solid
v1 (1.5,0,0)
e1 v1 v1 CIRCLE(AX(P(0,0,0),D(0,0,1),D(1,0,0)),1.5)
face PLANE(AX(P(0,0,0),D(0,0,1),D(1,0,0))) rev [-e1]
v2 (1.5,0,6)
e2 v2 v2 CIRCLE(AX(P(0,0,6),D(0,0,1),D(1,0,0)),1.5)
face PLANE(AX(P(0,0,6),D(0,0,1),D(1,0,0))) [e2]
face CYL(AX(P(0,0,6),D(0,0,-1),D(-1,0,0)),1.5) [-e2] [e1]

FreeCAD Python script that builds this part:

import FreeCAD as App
import Part
import Sketcher
Q = App.Units.Quantity

doc = App.newDocument("Part")
params = doc.addObject("Spreadsheet::Sheet", "Params")
for row, (alias, value) in enumerate([
    ("sketch1_diameter", "3 mm"),
    ("pad1_length", "6 mm"),
], start=1):
    params.set(f"A{row}", alias)
    params.set(f"B{row}", "=" + value)
    params.setAlias(f"B{row}", alias)

body = doc.addObject("PartDesign::Body", "Body")

sketch1 = doc.addObject("Sketcher::SketchObject", "Sketch")
body.addObject(sketch1)
sketch1.AttachmentSupport = (doc.XY_Plane, [""])
sketch1.MapMode = "FlatFace"
sketch1.addGeometry(Part.Circle(App.Vector(0, 0, 0), App.Vector(0, 0, 1), 1.5), False)
sketch1.addConstraint([
    Sketcher.Constraint("Coincident", 0, 3, -1, 1),
    Sketcher.Constraint("Diameter", 0, Q("3 mm")),
])
sketch1.setExpression("Constraints[1]", "Params.sketch1_diameter")
pad1 = doc.addObject("PartDesign::Pad", "Pad")
body.addObject(pad1)
pad1.Profile = sketch1
pad1.setExpression("Length", "Params.pad1_length")

doc.recompute()
